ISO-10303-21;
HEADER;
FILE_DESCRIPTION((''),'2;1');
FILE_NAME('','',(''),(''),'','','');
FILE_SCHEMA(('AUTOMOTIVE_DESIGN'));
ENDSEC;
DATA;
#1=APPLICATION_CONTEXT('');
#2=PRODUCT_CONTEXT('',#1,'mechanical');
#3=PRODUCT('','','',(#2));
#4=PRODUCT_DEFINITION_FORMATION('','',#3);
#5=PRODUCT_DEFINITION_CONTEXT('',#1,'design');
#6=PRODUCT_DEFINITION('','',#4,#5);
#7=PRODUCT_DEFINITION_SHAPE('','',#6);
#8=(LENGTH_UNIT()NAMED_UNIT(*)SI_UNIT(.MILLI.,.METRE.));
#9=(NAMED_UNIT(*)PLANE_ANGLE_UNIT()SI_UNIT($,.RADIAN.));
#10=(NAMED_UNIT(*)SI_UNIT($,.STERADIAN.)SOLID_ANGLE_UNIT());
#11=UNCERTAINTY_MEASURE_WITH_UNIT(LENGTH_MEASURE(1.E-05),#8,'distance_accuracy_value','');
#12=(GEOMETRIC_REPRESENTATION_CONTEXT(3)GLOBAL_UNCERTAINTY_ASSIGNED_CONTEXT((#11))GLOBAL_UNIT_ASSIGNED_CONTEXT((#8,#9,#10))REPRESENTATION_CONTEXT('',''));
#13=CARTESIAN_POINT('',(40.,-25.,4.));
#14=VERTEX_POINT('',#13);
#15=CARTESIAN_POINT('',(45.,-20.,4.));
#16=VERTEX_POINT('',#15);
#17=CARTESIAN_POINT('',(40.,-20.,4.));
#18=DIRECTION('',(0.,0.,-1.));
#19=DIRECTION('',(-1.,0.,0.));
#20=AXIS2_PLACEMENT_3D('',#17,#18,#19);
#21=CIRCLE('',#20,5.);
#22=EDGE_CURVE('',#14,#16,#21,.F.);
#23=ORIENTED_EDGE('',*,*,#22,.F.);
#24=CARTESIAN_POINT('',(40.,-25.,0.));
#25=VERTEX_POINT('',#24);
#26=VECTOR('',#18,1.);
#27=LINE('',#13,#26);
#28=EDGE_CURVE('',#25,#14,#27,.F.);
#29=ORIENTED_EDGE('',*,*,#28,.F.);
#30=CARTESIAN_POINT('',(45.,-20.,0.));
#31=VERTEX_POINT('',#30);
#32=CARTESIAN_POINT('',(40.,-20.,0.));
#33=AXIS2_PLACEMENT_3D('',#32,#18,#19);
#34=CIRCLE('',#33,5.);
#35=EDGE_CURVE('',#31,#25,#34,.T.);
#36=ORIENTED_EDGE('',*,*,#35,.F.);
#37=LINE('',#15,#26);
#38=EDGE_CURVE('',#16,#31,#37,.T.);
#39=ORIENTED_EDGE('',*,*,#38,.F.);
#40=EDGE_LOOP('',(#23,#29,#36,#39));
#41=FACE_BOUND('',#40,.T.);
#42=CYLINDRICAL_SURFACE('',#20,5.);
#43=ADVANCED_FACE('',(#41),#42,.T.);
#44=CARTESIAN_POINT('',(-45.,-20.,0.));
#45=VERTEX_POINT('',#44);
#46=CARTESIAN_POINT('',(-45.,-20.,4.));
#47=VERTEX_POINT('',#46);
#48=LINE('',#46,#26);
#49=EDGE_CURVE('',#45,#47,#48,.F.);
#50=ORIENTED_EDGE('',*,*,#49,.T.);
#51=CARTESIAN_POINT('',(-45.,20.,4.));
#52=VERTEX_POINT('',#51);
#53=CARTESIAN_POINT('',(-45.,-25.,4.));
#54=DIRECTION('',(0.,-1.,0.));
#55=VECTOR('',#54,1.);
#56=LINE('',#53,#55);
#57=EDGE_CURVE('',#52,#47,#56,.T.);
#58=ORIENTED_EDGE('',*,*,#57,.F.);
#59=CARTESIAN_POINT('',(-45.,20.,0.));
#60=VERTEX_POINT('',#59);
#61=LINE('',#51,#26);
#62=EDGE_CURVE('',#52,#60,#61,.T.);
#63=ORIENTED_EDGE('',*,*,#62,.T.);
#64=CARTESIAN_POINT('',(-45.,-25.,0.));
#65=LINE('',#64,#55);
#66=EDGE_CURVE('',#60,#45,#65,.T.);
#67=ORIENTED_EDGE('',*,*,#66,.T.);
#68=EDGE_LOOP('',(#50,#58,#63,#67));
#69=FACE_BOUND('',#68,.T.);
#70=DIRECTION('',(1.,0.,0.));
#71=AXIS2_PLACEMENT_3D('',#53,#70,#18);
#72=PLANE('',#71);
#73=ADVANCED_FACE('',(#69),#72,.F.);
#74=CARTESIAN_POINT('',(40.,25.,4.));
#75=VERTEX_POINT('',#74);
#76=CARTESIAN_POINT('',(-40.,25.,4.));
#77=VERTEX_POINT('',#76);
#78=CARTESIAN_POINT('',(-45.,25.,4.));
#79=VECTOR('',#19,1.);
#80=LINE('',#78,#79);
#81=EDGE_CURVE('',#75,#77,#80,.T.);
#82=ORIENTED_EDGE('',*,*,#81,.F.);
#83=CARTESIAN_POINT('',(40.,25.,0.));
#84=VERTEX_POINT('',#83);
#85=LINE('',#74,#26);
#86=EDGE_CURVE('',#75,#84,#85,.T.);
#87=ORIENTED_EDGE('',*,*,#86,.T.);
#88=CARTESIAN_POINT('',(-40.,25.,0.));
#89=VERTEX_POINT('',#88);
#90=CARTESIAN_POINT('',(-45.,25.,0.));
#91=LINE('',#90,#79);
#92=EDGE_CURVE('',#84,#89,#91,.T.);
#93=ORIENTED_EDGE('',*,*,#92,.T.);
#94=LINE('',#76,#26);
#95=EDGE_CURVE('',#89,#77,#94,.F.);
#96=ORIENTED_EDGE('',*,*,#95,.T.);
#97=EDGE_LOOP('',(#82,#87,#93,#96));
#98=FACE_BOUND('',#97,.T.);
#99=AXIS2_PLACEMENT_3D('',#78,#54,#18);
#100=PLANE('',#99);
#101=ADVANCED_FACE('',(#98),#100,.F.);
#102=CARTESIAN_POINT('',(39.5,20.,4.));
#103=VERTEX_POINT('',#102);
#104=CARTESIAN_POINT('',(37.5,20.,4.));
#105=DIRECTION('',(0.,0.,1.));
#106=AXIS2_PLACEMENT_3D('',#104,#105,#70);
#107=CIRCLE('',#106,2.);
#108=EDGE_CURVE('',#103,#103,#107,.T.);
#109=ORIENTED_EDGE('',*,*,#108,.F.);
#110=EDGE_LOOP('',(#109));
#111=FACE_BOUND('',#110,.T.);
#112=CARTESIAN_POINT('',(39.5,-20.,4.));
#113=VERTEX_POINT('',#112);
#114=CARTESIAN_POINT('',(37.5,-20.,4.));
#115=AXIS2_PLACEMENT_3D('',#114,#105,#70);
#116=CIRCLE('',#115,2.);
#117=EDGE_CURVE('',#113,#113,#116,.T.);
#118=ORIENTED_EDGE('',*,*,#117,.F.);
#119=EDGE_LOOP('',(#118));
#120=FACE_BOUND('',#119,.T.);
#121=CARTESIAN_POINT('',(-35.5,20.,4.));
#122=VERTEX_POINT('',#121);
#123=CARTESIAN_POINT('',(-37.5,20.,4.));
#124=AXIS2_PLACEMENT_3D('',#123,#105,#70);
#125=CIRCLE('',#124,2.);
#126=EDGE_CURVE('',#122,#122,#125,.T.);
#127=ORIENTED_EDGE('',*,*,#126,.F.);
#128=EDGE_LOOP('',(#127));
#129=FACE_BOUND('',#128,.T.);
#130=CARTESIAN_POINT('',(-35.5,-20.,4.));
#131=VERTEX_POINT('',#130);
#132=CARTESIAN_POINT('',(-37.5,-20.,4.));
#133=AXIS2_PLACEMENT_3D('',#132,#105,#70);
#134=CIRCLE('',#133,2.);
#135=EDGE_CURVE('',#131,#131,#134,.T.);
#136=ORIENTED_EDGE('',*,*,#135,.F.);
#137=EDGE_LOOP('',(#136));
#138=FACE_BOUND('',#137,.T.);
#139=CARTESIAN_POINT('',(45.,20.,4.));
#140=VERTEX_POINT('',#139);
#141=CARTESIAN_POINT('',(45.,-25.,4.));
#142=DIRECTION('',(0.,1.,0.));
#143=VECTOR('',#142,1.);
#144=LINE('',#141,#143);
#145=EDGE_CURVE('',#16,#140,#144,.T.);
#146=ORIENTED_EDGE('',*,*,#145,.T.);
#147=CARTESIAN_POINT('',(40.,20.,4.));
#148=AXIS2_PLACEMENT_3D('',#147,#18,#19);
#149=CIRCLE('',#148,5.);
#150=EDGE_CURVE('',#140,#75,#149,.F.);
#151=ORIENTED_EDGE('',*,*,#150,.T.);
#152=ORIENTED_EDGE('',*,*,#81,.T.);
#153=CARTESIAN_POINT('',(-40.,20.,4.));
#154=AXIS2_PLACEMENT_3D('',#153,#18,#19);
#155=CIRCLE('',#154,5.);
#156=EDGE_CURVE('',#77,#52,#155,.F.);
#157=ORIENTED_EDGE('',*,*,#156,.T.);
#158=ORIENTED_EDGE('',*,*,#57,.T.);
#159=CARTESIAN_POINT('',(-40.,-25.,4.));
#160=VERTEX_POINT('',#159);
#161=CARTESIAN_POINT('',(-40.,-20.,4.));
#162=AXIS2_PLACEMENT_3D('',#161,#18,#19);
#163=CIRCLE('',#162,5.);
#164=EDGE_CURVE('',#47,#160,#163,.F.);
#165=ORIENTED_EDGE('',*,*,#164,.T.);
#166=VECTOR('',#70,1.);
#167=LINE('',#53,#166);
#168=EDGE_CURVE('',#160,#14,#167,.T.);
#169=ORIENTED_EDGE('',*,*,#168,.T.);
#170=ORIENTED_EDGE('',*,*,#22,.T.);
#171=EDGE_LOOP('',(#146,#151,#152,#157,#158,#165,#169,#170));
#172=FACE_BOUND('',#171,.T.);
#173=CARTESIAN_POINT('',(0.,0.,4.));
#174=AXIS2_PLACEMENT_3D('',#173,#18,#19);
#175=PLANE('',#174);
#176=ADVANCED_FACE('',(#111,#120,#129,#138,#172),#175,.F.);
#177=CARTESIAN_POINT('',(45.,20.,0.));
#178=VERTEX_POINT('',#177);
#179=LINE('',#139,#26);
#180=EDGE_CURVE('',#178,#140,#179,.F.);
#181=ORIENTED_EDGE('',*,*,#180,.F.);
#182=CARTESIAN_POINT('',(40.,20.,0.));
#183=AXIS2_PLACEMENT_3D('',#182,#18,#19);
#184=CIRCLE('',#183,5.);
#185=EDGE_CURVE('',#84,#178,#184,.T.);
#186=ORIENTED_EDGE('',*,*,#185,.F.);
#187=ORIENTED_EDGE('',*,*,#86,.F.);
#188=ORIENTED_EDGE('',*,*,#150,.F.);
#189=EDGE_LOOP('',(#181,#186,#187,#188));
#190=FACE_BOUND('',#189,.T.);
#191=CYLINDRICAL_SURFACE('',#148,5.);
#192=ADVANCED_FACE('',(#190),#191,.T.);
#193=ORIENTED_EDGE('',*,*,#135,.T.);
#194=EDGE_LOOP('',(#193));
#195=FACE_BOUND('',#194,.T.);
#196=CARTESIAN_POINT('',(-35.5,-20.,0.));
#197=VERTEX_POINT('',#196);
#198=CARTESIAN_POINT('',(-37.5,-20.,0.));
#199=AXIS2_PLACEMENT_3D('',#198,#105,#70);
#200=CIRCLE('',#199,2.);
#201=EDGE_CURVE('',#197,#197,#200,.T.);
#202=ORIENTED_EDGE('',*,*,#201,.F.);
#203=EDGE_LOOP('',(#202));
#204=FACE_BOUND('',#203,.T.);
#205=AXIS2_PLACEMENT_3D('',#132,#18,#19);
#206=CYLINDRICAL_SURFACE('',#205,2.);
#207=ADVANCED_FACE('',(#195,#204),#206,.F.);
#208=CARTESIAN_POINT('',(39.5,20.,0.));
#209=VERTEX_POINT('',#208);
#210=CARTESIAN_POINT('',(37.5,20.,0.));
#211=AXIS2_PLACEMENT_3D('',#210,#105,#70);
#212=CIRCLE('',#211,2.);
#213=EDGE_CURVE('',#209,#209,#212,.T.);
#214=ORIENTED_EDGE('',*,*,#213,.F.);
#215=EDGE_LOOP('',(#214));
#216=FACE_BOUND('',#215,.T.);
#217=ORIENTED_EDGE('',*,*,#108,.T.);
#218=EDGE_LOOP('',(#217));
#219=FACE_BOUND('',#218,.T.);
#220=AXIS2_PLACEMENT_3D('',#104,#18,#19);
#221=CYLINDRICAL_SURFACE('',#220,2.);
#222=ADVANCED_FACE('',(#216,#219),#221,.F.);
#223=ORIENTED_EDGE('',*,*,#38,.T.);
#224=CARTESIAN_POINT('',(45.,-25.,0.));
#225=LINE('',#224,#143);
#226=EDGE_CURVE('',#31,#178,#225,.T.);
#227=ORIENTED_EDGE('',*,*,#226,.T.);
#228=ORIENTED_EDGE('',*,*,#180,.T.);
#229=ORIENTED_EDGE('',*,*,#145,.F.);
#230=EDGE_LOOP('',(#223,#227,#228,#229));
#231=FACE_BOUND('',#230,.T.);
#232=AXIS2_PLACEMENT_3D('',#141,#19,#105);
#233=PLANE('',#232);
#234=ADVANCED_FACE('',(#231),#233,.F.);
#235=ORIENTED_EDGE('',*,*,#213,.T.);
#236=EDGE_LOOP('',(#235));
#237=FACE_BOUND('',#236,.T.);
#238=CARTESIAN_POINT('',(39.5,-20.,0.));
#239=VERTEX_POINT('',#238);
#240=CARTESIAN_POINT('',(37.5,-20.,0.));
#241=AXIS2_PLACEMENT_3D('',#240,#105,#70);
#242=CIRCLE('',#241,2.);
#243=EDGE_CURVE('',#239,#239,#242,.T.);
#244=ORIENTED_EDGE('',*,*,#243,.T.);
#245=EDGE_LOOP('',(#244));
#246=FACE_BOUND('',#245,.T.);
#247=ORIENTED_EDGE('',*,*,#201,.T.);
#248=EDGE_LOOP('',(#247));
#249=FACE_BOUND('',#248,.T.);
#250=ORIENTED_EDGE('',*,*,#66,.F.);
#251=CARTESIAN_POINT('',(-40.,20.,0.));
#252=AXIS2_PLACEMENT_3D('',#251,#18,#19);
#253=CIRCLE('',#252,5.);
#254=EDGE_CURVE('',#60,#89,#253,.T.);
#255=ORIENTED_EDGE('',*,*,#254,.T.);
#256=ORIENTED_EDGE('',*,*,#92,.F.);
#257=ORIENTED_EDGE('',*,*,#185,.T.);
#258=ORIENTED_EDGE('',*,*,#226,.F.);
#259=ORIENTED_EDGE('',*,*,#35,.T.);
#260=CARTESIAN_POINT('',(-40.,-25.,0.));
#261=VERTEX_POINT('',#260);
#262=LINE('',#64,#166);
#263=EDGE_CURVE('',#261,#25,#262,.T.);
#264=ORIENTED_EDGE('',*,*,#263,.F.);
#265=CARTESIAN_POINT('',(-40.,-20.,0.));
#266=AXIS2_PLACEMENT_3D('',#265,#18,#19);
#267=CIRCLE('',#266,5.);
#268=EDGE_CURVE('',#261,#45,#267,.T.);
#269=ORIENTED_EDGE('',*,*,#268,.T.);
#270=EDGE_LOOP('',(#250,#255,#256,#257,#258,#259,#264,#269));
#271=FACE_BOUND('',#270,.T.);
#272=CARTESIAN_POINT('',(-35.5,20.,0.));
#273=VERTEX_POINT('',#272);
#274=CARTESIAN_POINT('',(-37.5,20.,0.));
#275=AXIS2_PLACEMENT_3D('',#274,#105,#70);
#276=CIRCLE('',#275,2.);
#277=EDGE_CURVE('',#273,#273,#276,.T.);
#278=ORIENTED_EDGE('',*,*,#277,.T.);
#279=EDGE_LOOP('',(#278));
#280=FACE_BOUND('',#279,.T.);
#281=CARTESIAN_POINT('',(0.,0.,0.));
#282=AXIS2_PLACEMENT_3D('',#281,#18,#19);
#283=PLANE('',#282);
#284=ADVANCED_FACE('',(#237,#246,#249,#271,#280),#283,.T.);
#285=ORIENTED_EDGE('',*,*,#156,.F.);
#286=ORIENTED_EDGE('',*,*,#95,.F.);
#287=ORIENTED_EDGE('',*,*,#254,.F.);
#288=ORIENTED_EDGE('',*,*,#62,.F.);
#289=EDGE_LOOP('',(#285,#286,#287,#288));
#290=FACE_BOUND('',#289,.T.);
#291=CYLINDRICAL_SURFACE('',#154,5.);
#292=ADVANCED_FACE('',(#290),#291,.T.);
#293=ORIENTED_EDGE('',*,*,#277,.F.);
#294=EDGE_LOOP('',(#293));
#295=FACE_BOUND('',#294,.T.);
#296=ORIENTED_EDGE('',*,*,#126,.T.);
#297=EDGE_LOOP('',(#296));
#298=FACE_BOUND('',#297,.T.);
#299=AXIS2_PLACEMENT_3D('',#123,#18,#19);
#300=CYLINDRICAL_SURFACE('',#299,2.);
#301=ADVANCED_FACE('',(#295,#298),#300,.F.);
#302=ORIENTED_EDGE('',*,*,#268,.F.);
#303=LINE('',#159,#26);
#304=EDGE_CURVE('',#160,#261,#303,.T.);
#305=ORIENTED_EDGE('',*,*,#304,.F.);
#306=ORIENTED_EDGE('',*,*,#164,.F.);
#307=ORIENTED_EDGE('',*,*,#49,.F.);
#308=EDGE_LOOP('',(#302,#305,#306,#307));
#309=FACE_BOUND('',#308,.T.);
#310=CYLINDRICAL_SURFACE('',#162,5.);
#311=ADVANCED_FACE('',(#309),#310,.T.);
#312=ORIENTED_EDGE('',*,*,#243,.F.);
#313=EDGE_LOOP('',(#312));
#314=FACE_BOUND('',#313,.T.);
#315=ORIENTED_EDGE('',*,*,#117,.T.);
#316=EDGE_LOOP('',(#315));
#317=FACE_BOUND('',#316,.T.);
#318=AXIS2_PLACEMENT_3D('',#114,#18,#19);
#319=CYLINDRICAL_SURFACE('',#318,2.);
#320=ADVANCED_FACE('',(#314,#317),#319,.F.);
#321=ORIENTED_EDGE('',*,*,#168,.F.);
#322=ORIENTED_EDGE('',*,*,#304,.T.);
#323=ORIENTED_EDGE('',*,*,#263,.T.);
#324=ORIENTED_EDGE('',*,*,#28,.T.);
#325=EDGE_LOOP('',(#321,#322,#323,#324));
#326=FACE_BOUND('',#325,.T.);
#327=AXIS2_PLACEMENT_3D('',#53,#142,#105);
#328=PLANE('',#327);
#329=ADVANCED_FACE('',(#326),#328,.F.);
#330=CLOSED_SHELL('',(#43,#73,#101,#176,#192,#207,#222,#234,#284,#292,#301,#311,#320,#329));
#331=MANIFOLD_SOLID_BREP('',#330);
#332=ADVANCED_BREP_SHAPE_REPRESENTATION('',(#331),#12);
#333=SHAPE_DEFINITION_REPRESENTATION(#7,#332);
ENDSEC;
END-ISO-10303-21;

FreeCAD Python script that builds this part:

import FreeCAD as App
import Part
import Sketcher
Q = App.Units.Quantity


def edges_at(feature, points):
    """Names of the edges that pass closest to the given points."""
    edges = feature.Shape.Edges
    near = lambda p: min(range(len(edges)), key=lambda i: edges[i].distToShape(Part.Vertex(*p))[0])
    return sorted({f"Edge{near(p) + 1}" for p in points})

doc = App.newDocument("Part")
body = doc.addObject("PartDesign::Body", "Body")

sketch1 = body.newObject("Sketcher::SketchObject", "Sketch")
sketch1.AttachmentSupport = (doc.getObject("XY_Plane"), [""])
sketch1.MapMode = "FlatFace"
sketch1.addGeometry([
    Part.LineSegment(App.Vector(-45, 25, 0), App.Vector(-45, -25, 0)),
    Part.LineSegment(App.Vector(-45, -25, 0), App.Vector(45, -25, 0)),
    Part.LineSegment(App.Vector(45, -25, 0), App.Vector(45, 25, 0)),
    Part.LineSegment(App.Vector(45, 25, 0), App.Vector(-45, 25, 0)),
    Part.Circle(App.Vector(-37.5, -20, 0), App.Vector(0, 0, 1), 2),
    Part.Circle(App.Vector(37.5, -20, 0), App.Vector(0, 0, 1), 2),
    Part.Circle(App.Vector(-37.5, 20, 0), App.Vector(0, 0, 1), 2),
    Part.Circle(App.Vector(37.5, 20, 0), App.Vector(0, 0, 1), 2),
], False)
sketch1.addConstraint([
    Sketcher.Constraint("Coincident", 0, 2, 1, 1),
    Sketcher.Constraint("Coincident", 1, 2, 2, 1),
    Sketcher.Constraint("Coincident", 2, 2, 3, 1),
    Sketcher.Constraint("Coincident", 3, 2, 0, 1),
    Sketcher.Constraint("Vertical", 0),
    Sketcher.Constraint("Horizontal", 1),
    Sketcher.Constraint("Vertical", 2),
    Sketcher.Constraint("Horizontal", 3),
    Sketcher.Constraint("Equal", 4, 5),
    Sketcher.Constraint("Equal", 5, 6),
    Sketcher.Constraint("Equal", 6, 7),
    Sketcher.Constraint("Symmetric", 5, 3, 6, 3, -1, 1),
    Sketcher.Constraint("Symmetric", 4, 3, 7, 3, -1, 1),
    Sketcher.Constraint("Symmetric", 0, 2, 2, 2, -1, 1),
    Sketcher.Constraint("Symmetric", 4, 3, 5, 3, -2),
    Sketcher.Constraint("Diameter", 4, Q("4 mm")),
    Sketcher.Constraint("DistanceX", 1, 1, 1, 2, Q("90 mm")),
    Sketcher.Constraint("DistanceY", 0, 2, 0, 1, Q("50 mm")),
    Sketcher.Constraint("DistanceY", 4, 3, -1, 1, Q("20 mm")),
    Sketcher.Constraint("DistanceX", 4, 3, 5, 3, Q("75 mm")),
])
pad1 = body.newObject("PartDesign::Pad", "Pad")
pad1.Profile = sketch1
pad1.Length = 4
doc.recompute()

fillet = body.newObject("PartDesign::Fillet", "Fillet")
fillet.Base = (pad1, edges_at(pad1, [
    (45, -25, 2),
    (-45, -25, 2),
    (-45, 25, 2),
    (45, 25, 2),
]))
fillet.Radius = 5

doc.recompute()
